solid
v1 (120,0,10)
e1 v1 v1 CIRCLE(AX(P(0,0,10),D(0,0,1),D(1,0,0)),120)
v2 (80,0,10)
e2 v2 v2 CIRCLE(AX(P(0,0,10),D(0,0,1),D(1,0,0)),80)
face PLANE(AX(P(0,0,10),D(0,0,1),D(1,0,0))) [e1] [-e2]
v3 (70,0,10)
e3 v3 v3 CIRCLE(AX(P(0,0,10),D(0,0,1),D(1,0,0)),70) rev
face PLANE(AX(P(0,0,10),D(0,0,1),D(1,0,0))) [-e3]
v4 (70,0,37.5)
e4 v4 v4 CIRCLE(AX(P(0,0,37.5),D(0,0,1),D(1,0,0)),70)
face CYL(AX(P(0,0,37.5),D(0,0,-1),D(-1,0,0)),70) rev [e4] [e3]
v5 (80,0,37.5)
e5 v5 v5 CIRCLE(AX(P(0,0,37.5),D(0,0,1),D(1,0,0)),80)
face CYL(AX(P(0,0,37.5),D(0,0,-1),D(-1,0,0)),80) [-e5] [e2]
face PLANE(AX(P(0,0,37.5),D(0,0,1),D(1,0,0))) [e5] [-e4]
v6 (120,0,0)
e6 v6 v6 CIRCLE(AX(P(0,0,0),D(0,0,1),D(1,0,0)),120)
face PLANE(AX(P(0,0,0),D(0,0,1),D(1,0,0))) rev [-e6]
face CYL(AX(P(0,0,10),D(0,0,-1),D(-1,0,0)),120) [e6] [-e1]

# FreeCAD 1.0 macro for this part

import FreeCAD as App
import Part
import Sketcher
from FreeCAD import Vector

doc = App.newDocument("Part")
body = doc.addObject("PartDesign::Body", "Body")

sketch1 = body.newObject("Sketcher::SketchObject", "Sketch")
sketch1.AttachmentSupport = (doc.getObject("XY_Plane"), [""])
sketch1.MapMode = "FlatFace"
sketch1.addGeometry(Part.Circle(Vector(0, 0, 0), Vector(0, 0, 1), 120), False)
sketch1.addConstraint([
    Sketcher.Constraint("Coincident", 0, 3, -1, 1),
    Sketcher.Constraint("Diameter", 0, 240.0),
])
pad1 = body.newObject("PartDesign::Pad", "Pad")
pad1.Profile = sketch1
pad1.Length = 10

sketch2 = body.newObject("Sketcher::SketchObject", "Sketch001")
sketch2.AttachmentSupport = (doc.getObject("XY_Plane"), [""])
sketch2.MapMode = "FlatFace"
sketch2.AttachmentOffset = App.Placement(Vector(0, 0, 10), App.Rotation())
sketch2.addGeometry([
    Part.Circle(Vector(0, 0, 0), Vector(0, 0, 1), 80),
    Part.Circle(Vector(0, 0, 0), Vector(0, 0, 1), 70),
], False)
sketch2.addConstraint([
    Sketcher.Constraint("Coincident", 0, 3, -1, 1),
    Sketcher.Constraint("Coincident", 1, 3, -1, 1),
    Sketcher.Constraint("Diameter", 0, 160.0),
    Sketcher.Constraint("Diameter", 1, 140.0),
])
pad2 = body.newObject("PartDesign::Pad", "Pad001")
pad2.Profile = sketch2
pad2.Length = 27.5

doc.recompute()
